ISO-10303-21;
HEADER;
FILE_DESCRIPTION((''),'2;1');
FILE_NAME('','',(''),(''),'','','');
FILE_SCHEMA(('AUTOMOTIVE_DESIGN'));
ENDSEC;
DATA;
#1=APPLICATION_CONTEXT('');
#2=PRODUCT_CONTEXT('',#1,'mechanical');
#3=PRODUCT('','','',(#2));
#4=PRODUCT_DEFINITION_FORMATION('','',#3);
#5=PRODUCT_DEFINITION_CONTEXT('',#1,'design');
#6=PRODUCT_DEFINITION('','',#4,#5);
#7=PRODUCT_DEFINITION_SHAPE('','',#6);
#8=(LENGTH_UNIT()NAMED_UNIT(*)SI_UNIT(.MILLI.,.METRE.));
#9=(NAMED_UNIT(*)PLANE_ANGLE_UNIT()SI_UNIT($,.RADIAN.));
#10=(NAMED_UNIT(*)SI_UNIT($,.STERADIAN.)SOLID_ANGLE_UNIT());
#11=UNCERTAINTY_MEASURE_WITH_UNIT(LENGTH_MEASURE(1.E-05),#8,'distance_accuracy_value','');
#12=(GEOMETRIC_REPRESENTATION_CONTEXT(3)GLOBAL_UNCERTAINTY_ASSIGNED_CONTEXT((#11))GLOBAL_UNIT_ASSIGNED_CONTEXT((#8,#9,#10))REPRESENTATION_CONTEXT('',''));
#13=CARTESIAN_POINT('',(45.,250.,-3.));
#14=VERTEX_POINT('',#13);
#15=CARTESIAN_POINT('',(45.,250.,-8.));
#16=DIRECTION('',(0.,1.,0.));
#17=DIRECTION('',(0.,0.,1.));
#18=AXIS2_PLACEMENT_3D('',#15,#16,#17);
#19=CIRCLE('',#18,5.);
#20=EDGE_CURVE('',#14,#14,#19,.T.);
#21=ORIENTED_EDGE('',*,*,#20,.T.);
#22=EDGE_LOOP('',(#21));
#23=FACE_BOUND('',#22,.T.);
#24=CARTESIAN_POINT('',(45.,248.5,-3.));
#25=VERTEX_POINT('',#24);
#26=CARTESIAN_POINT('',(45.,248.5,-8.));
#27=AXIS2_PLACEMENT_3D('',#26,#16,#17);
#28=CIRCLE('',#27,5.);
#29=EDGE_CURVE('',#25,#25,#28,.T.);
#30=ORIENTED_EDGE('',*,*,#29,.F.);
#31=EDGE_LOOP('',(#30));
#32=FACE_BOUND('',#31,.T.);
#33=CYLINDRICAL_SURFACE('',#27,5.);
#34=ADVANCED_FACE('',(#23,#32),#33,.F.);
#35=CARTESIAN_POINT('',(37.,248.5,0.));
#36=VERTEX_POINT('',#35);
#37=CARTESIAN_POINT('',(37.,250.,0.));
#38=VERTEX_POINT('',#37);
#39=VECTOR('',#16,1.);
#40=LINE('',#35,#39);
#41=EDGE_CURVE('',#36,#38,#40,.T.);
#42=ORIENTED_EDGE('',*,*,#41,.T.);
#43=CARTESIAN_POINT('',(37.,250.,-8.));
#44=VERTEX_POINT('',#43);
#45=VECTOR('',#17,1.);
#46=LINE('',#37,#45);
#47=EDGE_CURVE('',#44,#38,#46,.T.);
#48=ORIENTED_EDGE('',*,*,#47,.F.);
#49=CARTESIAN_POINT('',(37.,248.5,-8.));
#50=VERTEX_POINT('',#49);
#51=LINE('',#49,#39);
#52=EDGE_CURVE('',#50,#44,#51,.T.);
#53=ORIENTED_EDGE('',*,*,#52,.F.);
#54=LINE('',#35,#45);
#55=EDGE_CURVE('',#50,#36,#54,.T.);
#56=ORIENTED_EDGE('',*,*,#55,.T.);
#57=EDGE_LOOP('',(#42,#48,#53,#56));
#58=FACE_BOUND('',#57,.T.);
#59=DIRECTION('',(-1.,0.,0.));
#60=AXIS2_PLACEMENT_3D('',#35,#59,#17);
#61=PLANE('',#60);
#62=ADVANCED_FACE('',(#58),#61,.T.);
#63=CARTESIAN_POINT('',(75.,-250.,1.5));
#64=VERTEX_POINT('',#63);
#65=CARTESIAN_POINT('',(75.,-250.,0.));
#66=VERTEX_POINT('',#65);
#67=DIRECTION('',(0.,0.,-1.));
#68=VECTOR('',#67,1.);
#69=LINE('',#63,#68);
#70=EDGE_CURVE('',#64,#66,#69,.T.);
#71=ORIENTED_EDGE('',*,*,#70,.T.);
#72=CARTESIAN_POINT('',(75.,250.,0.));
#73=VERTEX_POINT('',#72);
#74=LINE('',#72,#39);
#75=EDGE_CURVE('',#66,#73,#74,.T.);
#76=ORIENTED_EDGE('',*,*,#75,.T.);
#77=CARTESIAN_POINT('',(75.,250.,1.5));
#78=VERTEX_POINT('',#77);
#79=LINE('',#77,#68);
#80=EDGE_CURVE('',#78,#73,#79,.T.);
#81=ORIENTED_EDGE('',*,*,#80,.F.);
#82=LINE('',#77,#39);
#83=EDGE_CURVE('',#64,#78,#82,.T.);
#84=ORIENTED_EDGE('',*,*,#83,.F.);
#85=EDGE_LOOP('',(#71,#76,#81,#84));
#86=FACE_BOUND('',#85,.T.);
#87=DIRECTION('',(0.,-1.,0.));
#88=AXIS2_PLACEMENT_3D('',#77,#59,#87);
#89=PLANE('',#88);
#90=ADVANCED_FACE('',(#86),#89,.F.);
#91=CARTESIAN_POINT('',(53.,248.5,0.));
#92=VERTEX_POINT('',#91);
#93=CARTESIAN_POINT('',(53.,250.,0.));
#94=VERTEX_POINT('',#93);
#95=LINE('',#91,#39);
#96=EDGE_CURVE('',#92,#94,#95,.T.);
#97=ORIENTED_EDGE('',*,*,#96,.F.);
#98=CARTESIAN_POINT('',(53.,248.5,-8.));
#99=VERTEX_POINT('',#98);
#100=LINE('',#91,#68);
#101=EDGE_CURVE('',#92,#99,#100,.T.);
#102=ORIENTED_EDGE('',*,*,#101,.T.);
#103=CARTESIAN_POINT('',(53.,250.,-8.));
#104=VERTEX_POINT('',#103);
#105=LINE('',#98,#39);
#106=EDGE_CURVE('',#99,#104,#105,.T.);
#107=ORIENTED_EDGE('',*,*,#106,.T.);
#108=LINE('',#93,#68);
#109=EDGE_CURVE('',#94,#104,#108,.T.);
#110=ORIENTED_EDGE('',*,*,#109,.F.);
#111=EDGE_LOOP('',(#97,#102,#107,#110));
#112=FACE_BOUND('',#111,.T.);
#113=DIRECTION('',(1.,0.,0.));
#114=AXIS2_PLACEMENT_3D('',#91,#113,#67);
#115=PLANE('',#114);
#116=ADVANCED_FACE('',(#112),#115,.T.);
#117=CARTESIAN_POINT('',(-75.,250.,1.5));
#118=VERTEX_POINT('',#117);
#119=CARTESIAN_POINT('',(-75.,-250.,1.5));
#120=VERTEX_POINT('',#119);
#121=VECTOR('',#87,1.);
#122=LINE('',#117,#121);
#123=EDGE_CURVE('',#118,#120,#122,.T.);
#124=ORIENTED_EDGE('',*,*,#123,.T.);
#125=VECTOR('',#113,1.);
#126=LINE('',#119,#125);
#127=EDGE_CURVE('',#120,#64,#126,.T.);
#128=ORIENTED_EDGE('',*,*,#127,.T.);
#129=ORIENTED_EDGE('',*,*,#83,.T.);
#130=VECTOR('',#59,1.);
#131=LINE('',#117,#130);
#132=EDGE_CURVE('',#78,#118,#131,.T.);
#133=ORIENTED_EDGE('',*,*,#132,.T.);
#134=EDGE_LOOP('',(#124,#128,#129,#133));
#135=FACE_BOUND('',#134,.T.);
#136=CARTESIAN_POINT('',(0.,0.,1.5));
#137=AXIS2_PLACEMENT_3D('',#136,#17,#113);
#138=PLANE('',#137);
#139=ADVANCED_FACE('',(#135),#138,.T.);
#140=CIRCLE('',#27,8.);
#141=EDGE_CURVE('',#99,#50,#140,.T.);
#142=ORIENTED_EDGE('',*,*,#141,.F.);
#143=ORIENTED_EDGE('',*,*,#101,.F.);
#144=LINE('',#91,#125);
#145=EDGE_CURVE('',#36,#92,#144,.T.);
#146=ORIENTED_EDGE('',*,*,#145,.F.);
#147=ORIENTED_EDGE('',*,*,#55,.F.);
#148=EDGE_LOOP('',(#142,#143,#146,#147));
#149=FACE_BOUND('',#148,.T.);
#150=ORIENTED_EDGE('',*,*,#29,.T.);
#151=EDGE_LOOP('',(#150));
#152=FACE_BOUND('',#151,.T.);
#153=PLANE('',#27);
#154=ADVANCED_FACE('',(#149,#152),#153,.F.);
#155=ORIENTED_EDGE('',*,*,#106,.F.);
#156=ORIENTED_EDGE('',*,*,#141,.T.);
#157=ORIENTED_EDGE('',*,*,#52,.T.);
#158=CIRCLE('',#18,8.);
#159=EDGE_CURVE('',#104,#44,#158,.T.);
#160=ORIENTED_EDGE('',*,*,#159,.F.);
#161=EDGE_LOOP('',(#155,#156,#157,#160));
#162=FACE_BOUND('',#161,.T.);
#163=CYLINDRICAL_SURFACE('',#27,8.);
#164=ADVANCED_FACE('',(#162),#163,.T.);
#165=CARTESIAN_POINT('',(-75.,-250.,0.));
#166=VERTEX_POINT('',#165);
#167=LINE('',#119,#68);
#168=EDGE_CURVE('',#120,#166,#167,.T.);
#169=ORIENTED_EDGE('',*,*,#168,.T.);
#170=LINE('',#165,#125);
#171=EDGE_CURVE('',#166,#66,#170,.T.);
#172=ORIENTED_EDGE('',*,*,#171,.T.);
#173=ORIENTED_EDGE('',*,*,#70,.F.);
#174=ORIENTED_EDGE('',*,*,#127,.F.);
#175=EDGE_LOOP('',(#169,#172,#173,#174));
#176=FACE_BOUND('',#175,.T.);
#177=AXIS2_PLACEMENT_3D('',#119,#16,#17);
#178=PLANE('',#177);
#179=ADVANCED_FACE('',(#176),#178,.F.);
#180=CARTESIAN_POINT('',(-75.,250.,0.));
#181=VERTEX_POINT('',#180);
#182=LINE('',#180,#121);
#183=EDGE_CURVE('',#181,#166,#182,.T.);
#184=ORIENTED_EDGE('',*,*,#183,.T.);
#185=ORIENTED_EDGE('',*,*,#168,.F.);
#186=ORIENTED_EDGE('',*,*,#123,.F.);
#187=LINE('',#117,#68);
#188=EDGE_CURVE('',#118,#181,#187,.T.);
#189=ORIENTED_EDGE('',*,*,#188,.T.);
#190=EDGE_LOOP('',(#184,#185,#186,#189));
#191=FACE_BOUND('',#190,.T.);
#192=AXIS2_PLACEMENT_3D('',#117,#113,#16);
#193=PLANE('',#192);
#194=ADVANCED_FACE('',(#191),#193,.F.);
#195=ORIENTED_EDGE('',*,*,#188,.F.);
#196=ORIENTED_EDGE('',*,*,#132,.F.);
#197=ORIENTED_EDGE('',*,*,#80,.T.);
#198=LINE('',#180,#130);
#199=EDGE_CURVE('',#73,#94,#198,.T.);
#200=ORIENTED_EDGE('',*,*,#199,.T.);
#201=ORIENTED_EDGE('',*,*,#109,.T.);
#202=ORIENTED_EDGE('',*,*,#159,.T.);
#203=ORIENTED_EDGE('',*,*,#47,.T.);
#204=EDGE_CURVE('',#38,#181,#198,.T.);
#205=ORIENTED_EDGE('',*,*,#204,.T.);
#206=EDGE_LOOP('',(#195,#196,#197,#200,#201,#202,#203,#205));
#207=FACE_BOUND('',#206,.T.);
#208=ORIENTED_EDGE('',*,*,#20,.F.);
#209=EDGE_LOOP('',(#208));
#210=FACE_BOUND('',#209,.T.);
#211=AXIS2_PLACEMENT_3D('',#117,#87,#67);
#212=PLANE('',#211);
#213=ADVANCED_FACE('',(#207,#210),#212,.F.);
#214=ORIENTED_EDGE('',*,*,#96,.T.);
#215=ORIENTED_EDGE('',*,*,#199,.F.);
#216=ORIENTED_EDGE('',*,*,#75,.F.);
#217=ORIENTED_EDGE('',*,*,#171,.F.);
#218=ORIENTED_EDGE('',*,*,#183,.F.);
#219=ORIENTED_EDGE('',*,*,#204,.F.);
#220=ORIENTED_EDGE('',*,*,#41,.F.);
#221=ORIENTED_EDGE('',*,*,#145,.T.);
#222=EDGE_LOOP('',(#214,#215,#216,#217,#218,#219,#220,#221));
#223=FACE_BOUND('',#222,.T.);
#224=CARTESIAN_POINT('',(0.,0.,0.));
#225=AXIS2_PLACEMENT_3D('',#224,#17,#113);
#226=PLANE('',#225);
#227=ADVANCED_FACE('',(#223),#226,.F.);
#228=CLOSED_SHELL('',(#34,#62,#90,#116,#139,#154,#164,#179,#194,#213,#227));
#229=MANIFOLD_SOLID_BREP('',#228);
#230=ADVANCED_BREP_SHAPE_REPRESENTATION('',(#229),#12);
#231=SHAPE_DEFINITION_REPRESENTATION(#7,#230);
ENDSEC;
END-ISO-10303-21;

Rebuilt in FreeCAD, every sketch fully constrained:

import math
import FreeCAD as App
import Part
import Sketcher

doc = App.newDocument("Part")
body = doc.addObject("PartDesign::Body", "Body")

sketch1 = doc.addObject("Sketcher::SketchObject", "Sketch")
body.addObject(sketch1)
sketch1.AttachmentSupport = (doc.XY_Plane, [""])
sketch1.MapMode = "FlatFace"
sketch1.addGeometry(Part.LineSegment(App.Vector(-75, 250, 0), App.Vector(-75, -250, 0)), False)
sketch1.addGeometry(Part.LineSegment(App.Vector(-75, -250, 0), App.Vector(75, -250, 0)), False)
sketch1.addGeometry(Part.LineSegment(App.Vector(75, -250, 0), App.Vector(75, 250, 0)), False)
sketch1.addGeometry(Part.LineSegment(App.Vector(75, 250, 0), App.Vector(-75, 250, 0)), False)
sketch1.addConstraint(Sketcher.Constraint("Coincident", 0, 2, 1, 1))
sketch1.addConstraint(Sketcher.Constraint("Coincident", 1, 2, 2, 1))
sketch1.addConstraint(Sketcher.Constraint("Coincident", 2, 2, 3, 1))
sketch1.addConstraint(Sketcher.Constraint("Coincident", 3, 2, 0, 1))
sketch1.addConstraint(Sketcher.Constraint("Vertical", 0))
sketch1.addConstraint(Sketcher.Constraint("Horizontal", 1))
sketch1.addConstraint(Sketcher.Constraint("Vertical", 2))
sketch1.addConstraint(Sketcher.Constraint("Horizontal", 3))
sketch1.addConstraint(Sketcher.Constraint("Symmetric", 0, 2, 2, 2, -1, 1))
sketch1.addConstraint(Sketcher.Constraint("DistanceX", 1, 1, 1, 2, 150.0))
sketch1.addConstraint(Sketcher.Constraint("DistanceY", 0, 2, 0, 1, 500.0))
pad1 = doc.addObject("PartDesign::Pad", "Pad")
body.addObject(pad1)
pad1.Profile = sketch1
pad1.Length = 1.5

sketch2 = doc.addObject("Sketcher::SketchObject", "Sketch001")
body.addObject(sketch2)
sketch2.AttachmentSupport = (doc.XZ_Plane, [""])
sketch2.MapMode = "FlatFace"
sketch2.AttachmentOffset = App.Placement(App.Vector(0, 0, -250), App.Rotation())
sketch2.addGeometry(Part.LineSegment(App.Vector(37, -8, 0), App.Vector(37, 0, 0)), False)
sketch2.addGeometry(Part.LineSegment(App.Vector(37, 0, 0), App.Vector(53, 0, 0)), False)
sketch2.addGeometry(Part.LineSegment(App.Vector(53, 0, 0), App.Vector(53, -8, 0)), False)
sketch2.addGeometry(Part.ArcOfCircle(Part.Circle(App.Vector(45, -8, 0), App.Vector(0, 0, 1), 8), math.radians(180), math.radians(360)), False)
sketch2.addGeometry(Part.Circle(App.Vector(45, -8, 0), App.Vector(0, 0, 1), 5), False)
sketch2.addConstraint(Sketcher.Constraint("Coincident", 0, 2, 1, 1))
sketch2.addConstraint(Sketcher.Constraint("Coincident", 1, 2, 2, 1))
sketch2.addConstraint(Sketcher.Constraint("Tangent", 2, 2, 3, 2))
sketch2.addConstraint(Sketcher.Constraint("Tangent", 3, 1, 0, 1))
sketch2.addConstraint(Sketcher.Constraint("Vertical", 0))
sketch2.addConstraint(Sketcher.Constraint("Horizontal", 1))
sketch2.addConstraint(Sketcher.Constraint("Vertical", 2))
sketch2.addConstraint(Sketcher.Constraint("Coincident", 4, 3, 3, 3))
sketch2.addConstraint(Sketcher.Constraint("PointOnObject", 0, 2, -1))
sketch2.addConstraint(Sketcher.Constraint("Diameter", 4, 10.0))
sketch2.addConstraint(Sketcher.Constraint("Radius", 3, 8.0))
sketch2.addConstraint(Sketcher.Constraint("DistanceY", 0, 1, 0, 2, 8.0))
sketch2.addConstraint(Sketcher.Constraint("DistanceX", -1, 1, 3, 3, 45.0))
pad2 = doc.addObject("PartDesign::Pad", "Pad001")
body.addObject(pad2)
pad2.Profile = sketch2
pad2.Length = 1.5

doc.recompute()
